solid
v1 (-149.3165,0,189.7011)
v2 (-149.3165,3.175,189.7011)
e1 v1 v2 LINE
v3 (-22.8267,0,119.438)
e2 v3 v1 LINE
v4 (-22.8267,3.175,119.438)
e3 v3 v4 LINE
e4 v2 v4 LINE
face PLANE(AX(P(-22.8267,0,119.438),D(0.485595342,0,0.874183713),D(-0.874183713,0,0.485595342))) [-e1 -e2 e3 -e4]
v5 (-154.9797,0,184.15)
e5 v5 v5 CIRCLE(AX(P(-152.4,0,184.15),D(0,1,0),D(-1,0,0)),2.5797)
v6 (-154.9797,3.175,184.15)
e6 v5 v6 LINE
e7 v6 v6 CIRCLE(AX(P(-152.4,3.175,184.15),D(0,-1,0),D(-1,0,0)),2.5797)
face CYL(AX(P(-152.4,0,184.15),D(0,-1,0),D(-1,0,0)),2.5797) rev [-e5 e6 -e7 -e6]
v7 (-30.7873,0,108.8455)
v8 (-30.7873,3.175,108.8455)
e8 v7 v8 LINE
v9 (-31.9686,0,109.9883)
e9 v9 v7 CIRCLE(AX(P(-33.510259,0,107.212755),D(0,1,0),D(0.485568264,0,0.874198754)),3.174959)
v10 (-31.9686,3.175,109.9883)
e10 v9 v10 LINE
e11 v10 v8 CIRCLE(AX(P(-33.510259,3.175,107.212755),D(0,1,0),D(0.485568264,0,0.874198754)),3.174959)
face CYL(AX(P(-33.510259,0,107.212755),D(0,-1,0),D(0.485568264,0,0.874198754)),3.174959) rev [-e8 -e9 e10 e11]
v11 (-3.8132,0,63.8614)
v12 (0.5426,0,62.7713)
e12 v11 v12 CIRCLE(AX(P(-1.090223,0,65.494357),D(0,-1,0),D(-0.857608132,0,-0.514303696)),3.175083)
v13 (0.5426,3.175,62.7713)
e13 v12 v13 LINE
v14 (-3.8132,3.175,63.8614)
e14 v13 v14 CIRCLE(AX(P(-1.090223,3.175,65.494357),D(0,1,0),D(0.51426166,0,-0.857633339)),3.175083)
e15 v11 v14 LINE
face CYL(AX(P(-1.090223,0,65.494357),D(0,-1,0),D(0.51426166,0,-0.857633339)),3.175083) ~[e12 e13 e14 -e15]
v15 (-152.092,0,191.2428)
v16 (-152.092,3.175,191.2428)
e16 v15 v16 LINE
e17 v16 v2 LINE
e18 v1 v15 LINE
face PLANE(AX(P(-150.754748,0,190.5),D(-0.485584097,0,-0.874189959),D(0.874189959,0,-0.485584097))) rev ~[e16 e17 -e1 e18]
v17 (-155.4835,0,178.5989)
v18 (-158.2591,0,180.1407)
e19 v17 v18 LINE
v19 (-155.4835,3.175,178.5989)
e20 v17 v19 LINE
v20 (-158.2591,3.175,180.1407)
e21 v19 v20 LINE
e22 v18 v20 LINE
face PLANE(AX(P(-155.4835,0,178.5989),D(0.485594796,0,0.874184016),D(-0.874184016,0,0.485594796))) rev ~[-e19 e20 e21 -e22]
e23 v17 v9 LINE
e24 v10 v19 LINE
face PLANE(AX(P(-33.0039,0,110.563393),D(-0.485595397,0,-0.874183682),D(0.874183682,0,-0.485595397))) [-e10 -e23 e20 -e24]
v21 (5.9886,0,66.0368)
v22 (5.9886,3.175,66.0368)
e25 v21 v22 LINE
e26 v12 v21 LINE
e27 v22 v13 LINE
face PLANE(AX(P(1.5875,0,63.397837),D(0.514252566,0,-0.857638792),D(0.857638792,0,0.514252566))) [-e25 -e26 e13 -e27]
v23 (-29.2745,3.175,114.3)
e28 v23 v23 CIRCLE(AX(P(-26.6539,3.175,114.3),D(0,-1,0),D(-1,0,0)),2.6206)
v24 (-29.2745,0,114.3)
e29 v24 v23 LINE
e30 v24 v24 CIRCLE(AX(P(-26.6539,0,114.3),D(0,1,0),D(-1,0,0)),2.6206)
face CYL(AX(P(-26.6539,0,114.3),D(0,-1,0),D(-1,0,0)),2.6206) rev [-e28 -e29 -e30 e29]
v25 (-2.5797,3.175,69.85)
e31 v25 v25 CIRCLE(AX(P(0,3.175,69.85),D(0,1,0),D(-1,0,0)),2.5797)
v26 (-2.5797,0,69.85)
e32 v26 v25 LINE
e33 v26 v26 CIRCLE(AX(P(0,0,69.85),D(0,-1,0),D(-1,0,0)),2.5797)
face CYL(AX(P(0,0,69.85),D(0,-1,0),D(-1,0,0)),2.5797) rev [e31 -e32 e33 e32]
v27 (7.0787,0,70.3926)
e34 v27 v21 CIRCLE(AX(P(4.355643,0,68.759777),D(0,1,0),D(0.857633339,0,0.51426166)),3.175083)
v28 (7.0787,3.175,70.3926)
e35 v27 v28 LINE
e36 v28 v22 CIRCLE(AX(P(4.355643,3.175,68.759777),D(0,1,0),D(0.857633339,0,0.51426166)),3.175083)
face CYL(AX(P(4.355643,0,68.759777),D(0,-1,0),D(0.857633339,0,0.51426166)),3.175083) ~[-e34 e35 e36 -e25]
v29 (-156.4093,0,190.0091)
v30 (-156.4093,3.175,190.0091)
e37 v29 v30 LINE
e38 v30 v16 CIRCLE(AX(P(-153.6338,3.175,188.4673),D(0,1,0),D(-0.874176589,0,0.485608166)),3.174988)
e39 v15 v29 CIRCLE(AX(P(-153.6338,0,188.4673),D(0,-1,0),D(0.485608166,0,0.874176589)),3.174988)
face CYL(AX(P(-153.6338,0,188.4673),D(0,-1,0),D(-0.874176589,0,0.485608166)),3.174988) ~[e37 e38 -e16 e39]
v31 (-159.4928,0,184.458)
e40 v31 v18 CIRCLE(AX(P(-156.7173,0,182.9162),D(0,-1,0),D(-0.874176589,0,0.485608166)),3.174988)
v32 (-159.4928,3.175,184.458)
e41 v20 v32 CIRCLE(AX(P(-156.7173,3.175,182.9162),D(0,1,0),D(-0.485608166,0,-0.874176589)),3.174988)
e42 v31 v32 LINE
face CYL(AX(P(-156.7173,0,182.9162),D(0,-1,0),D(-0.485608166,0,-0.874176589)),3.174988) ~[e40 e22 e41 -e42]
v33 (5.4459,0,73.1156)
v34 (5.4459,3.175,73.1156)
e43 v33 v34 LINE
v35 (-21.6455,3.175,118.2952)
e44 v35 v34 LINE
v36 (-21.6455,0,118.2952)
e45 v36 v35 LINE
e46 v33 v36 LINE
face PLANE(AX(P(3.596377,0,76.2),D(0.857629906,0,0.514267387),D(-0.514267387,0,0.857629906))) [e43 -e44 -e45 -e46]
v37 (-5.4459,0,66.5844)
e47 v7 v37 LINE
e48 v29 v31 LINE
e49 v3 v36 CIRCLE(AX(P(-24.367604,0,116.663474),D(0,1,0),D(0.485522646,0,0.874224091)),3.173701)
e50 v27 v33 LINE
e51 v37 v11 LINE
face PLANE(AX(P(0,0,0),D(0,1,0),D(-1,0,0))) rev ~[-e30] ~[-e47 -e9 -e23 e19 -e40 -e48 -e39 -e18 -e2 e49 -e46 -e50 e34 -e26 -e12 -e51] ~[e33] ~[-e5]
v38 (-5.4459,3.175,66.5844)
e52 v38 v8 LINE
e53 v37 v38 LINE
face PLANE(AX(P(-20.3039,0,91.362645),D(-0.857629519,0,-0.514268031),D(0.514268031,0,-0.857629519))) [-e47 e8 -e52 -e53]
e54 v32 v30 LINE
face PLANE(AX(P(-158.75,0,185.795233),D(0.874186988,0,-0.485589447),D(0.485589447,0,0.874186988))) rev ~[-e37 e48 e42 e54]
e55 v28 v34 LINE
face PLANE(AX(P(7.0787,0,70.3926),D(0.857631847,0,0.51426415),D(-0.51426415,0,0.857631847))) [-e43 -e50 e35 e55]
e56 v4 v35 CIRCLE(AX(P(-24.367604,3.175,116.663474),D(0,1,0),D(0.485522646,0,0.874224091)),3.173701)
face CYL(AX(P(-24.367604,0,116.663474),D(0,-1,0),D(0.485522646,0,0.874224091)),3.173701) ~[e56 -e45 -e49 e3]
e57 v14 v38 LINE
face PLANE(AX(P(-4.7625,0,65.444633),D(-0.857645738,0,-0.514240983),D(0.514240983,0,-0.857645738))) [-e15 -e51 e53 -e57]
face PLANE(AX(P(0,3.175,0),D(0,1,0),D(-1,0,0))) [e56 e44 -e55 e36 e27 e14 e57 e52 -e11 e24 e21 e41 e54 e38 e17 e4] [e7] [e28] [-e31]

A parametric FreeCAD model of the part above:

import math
import FreeCAD as App
import Part
import Sketcher
Q = App.Units.Quantity

doc = App.newDocument("Part")
params = doc.addObject("Spreadsheet::Sheet", "Params")
for row, (alias, value) in enumerate([
    ("sketch1_diameter", "0.203126 in"),
    ("sketch1_diameter2", "0.203126 in"),
    ("sketch1_radius", "0.125 in"),
    ("sketch1_radius2", "0.125 in"),
    ("sketch1_radius3", "0.125 in"),
    ("pad1_length", "0.125 in"),
], start=1):
    params.set(f"A{row}", alias)
    params.set(f"B{row}", "=" + value)
    params.setAlias(f"B{row}", alias)

body = doc.addObject("PartDesign::Body", "Body")

sketch1 = body.newObject("Sketcher::SketchObject", "Sketch")
sketch1.AttachmentSupport = (doc.getObject("XZ_Plane"), [""])
sketch1.MapMode = "FlatFace"
sketch1.addGeometry([
    Part.LineSegment(App.Vector(5.4459, 73.1156, 0), App.Vector(7.0787, 70.3926, 0)),
    Part.ArcOfCircle(Part.Circle(App.Vector(4.3558, 68.7598, 0), App.Vector(0, 0, 1), 3.174936), math.radians(-59.051718), math.radians(30.94921)),
    Part.LineSegment(App.Vector(5.9886, 66.0368, 0), App.Vector(0.5426, 62.7713, 0)),
    Part.ArcOfCircle(Part.Circle(App.Vector(-1.0902, 65.4942, 0), App.Vector(0, 0, 1), 3.174936), math.radians(-149.051718), math.radians(-59.05079)),
    Part.LineSegment(App.Vector(-3.8132, 63.8614, 0), App.Vector(-5.4459, 66.5844, 0)),
    Part.LineSegment(App.Vector(-5.4459, 66.5844, 0), App.Vector(-30.7873, 108.8455, 0)),
    Part.ArcOfCircle(Part.Circle(App.Vector(-33.5103, 107.2127, 0), App.Vector(0, 0, 1), 3.175027), math.radians(30.948282), math.radians(60.950128)),
    Part.LineSegment(App.Vector(-31.9686, 109.9883, 0), App.Vector(-155.4835, 178.5989, 0)),
    Part.LineSegment(App.Vector(-155.4835, 178.5989, 0), App.Vector(-158.2591, 180.1407, 0)),
    Part.ArcOfCircle(Part.Circle(App.Vector(-156.7173, 182.9162, 0), App.Vector(0, 0, 1), 3.174988), math.radians(150.947675), math.radians(240.947675)),
    Part.LineSegment(App.Vector(-159.4928, 184.458, 0), App.Vector(-156.4093, 190.0091, 0)),
    Part.ArcOfCircle(Part.Circle(App.Vector(-153.6338, 188.4673, 0), App.Vector(0, 0, 1), 3.174988), math.radians(60.947675), math.radians(150.947675)),
    Part.LineSegment(App.Vector(-152.092, 191.2428, 0), App.Vector(-149.3165, 189.7011, 0)),
    Part.LineSegment(App.Vector(-149.3165, 189.7011, 0), App.Vector(-22.8267, 119.438, 0)),
    Part.ArcOfCircle(Part.Circle(App.Vector(-24.367604, 116.663474, 0), App.Vector(0, 0, 1), 3.173701), math.radians(30.939971), math.radians(60.95328)),
    Part.LineSegment(App.Vector(-21.6455, 118.2952, 0), App.Vector(5.4459, 73.1156, 0)),
    Part.Circle(App.Vector(0, 69.85, 0), App.Vector(0, 0, 1), 2.5797),
    Part.Circle(App.Vector(-26.6539, 114.3, 0), App.Vector(0, 0, 1), 2.6206),
    Part.Circle(App.Vector(-152.4, 184.15, 0), App.Vector(0, 0, 1), 2.5797),
], False)
sketch1.addConstraint([
    Sketcher.Constraint("Coincident", 0, 2, 1, 2),
    Sketcher.Constraint("Coincident", 1, 1, 2, 1),
    Sketcher.Constraint("Coincident", 2, 2, 3, 2),
    Sketcher.Constraint("Coincident", 3, 1, 4, 1),
    Sketcher.Constraint("Coincident", 4, 2, 5, 1),
    Sketcher.Constraint("Coincident", 5, 2, 6, 1),
    Sketcher.Constraint("Coincident", 6, 2, 7, 1),
    Sketcher.Constraint("Coincident", 7, 2, 8, 1),
    Sketcher.Constraint("Coincident", 8, 2, 9, 2),
    Sketcher.Constraint("Coincident", 9, 1, 10, 1),
    Sketcher.Constraint("Coincident", 10, 2, 11, 2),
    Sketcher.Constraint("Coincident", 11, 1, 12, 1),
    Sketcher.Constraint("Coincident", 12, 2, 13, 1),
    Sketcher.Constraint("Coincident", 13, 2, 14, 2),
    Sketcher.Constraint("Coincident", 14, 1, 15, 1),
    Sketcher.Constraint("Coincident", 15, 2, 0, 1),
    Sketcher.Constraint("PointOnObject", 16, 3, -2),
    Sketcher.Constraint("Diameter", 16, Q("0.203126 in")),
    Sketcher.Constraint("Diameter", 18, Q("0.203126 in")),
    Sketcher.Constraint("DistanceX", 18, 3, -1, 1, Q("6 in")),
    Sketcher.Constraint("Radius", 1, Q("0.125 in")),
    Sketcher.Constraint("Radius", 3, Q("0.125 in")),
    Sketcher.Constraint("Radius", 6, Q("0.125 in")),
    Sketcher.Constraint("Radius", 9, Q("0.125 in")),
    Sketcher.Constraint("Radius", 11, Q("0.125 in")),
    Sketcher.Constraint("DistanceY", -1, 1, 17, 3, Q("4.5 in")),
    Sketcher.Constraint("Distance", 2, Q("0.25 in")),
    Sketcher.Constraint("Distance", 10, Q("0.25 in")),
    Sketcher.Constraint("Diameter", 17, Q("5.2412 mm")),
    Sketcher.Constraint("Distance", 0, Q("0.125 in")),
    Sketcher.Constraint("Distance", 4, Q("0.125 in")),
    Sketcher.Constraint("Distance", 8, Q("0.125 in")),
    Sketcher.Constraint("Distance", 12, Q("0.125 in")),
    Sketcher.Constraint("DistanceY", -1, 1, 16, 3, Q("2.75 in")),
    Sketcher.Constraint("DistanceY", -1, 1, 18, 3, Q("7.25 in")),
    Sketcher.Constraint("Radius", 14, Q("3.1737 mm")),
    Sketcher.Constraint("DistanceX", 17, 3, 14, 3, Q("0.09 in")),
    Sketcher.Constraint("Distance", 15, Q("2.074 in")),
    Sketcher.Constraint("DistanceY", 6, 3, 11, 3, Q("3.199 in")),
    Sketcher.Constraint("DistanceX", 6, 3, 0, 2, Q("1.598 in")),
    Sketcher.Constraint("DistanceY", 5, 2, 6, 2, Q("0.045 in")),
    Sketcher.Constraint("DistanceY", 14, 1, 13, 2, Q("0.045 in")),
    Sketcher.Constraint("DistanceX", -1, 1, 1, 3, Q("0.1715 in")),
    Sketcher.Constraint("DistanceY", -1, 1, 3, 3, Q("2.5785 in")),
    Sketcher.Constraint("DistanceX", 6, 3, -1, 1, Q("1.3193 in")),
    Sketcher.Constraint("DistanceY", -1, 1, 2, 2, Q("2.4713 in")),
    Sketcher.Constraint("DistanceX", 4, 2, -1, 1, Q("0.2144 in")),
    Sketcher.Constraint("DistanceX", 5, 2, -1, 1, Q("1.2121 in")),
    Sketcher.Constraint("DistanceX", 7, 2, -1, 1, Q("6.1214 in")),
    Sketcher.Constraint("DistanceX", 12, 2, -1, 1, Q("5.8786 in")),
    Sketcher.Constraint("DistanceX", 13, 2, -1, 1, Q("0.8987 in")),
    Sketcher.Constraint("DistanceY", -1, 1, 14, 1, Q("4.6573 in")),
    Sketcher.Constraint("DistanceX", -1, 1, 15, 2, Q("0.2144 in")),
    Sketcher.Constraint("DistanceX", 3, 3, 1, 3, Q("0.2144 in")),
    Sketcher.Constraint("DistanceY", 1, 3, 6, 3, Q("1.5139 in")),
    Sketcher.Constraint("DistanceX", 9, 3, 11, 3, Q("0.1214 in")),
    Sketcher.Constraint("DistanceY", 1, 1, 1, 3, Q("0.1072 in")),
    Sketcher.Constraint("DistanceX", 3, 1, 3, 3, Q("0.1072 in")),
    Sketcher.Constraint("DistanceY", 6, 2, 7, 2, Q("2.7012 in")),
    Sketcher.Constraint("DistanceX", 8, 2, 9, 3, Q("0.0607 in")),
    Sketcher.Constraint("DistanceY", 7, 2, 8, 2, Q("0.0607 in")),
    Sketcher.Constraint("DistanceY", 9, 3, 9, 1, Q("0.0607 in")),
    Sketcher.Constraint("DistanceX", 11, 3, 11, 1, Q("0.0607 in")),
])
sketch1.setExpression("Constraints[17]", "Params.sketch1_diameter")
sketch1.setExpression("Constraints[18]", "Params.sketch1_diameter2")
sketch1.setExpression("Constraints[20]", "Params.sketch1_radius")
sketch1.setExpression("Constraints[21]", "Params.sketch1_radius2")
sketch1.setExpression("Constraints[22]", "Params.sketch1_radius3")
pad1 = body.newObject("PartDesign::Pad", "Pad")
pad1.Profile = sketch1
pad1.setExpression("Length", "Params.pad1_length")
pad1.Reversed = True

doc.recompute()
